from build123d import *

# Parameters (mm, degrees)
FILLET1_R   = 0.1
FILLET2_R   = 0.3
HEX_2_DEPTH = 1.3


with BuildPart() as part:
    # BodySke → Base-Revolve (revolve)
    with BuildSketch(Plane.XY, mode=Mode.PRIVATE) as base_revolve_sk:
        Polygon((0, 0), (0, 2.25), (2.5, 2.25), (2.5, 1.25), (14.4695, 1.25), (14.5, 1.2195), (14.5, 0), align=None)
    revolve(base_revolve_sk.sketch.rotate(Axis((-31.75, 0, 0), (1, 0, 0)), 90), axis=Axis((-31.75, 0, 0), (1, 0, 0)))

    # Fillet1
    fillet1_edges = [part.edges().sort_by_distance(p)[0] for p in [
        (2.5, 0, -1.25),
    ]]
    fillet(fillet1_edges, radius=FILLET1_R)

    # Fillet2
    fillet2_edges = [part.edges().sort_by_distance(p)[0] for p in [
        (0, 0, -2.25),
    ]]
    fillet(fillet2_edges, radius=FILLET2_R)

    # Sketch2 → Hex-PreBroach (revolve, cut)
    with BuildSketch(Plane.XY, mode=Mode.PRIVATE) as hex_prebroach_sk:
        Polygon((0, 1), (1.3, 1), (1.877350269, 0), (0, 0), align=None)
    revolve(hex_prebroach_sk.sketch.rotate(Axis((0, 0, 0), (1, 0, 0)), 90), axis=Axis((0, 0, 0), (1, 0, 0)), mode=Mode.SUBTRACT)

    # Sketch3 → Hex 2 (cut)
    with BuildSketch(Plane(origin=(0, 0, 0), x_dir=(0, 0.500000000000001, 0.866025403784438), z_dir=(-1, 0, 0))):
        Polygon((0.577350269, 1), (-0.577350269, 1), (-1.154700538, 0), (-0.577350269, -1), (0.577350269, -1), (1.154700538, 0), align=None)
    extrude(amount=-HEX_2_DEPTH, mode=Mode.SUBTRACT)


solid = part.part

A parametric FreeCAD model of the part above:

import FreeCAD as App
import Part
import Sketcher
from FreeCAD import Vector
Q = App.Units.Quantity


def edges_at(feature, points):
    """Names of the edges that pass closest to the given points."""
    edges = feature.Shape.Edges
    near = lambda p: min(range(len(edges)), key=lambda i: edges[i].distToShape(Part.Vertex(*p))[0])
    return sorted({f"Edge{near(p) + 1}" for p in points})

doc = App.newDocument("Part")
body = doc.addObject("PartDesign::Body", "Body")

sketch1 = body.newObject("Sketcher::SketchObject", "Sketch")
sketch1.AttachmentSupport = (doc.getObject("XY_Plane"), [""])
sketch1.MapMode = "FlatFace"
sketch1.addGeometry([
    Part.LineSegment(Vector(0, 2.25, 0), Vector(0, 0, 0)),
    Part.LineSegment(Vector(0, 0, 0), Vector(14.5, 0, 0)),
    Part.LineSegment(Vector(14.5, 0, 0), Vector(14.5, 1.2195, 0)),
    Part.LineSegment(Vector(14.5, 1.2195, 0), Vector(14.4695, 1.25, 0)),
    Part.LineSegment(Vector(14.4695, 1.25, 0), Vector(2.5, 1.25, 0)),
    Part.LineSegment(Vector(2.5, 1.25, 0), Vector(2.5, 2.25, 0)),
    Part.LineSegment(Vector(2.5, 2.25, 0), Vector(0, 2.25, 0)),
], False)
sketch1.addConstraint([
    Sketcher.Constraint("Coincident", 0, 2, 1, 1),
    Sketcher.Constraint("Coincident", 1, 2, 2, 1),
    Sketcher.Constraint("Coincident", 2, 2, 3, 1),
    Sketcher.Constraint("Coincident", 3, 2, 4, 1),
    Sketcher.Constraint("Coincident", 4, 2, 5, 1),
    Sketcher.Constraint("Coincident", 5, 2, 6, 1),
    Sketcher.Constraint("Coincident", 6, 2, 0, 1),
    Sketcher.Constraint("Vertical", 0),
    Sketcher.Constraint("Horizontal", 1),
    Sketcher.Constraint("Vertical", 2),
    Sketcher.Constraint("Horizontal", 4),
    Sketcher.Constraint("Vertical", 5),
    Sketcher.Constraint("Horizontal", 6),
    Sketcher.Constraint("Coincident", 0, 2, -1, 1),
    Sketcher.Constraint("DistanceY", 5, 1, 5, 2, Q("1 mm")),
    Sketcher.Constraint("Angle", 3, Q("135 deg")),
    Sketcher.Constraint("DistanceX", 1, 1, 1, 2, Q("14.5 mm")),
    Sketcher.Constraint("DistanceX", 6, 2, 6, 1, Q("2.5 mm")),
    Sketcher.Constraint("DistanceY", 0, 2, 0, 1, Q("2.25 mm")),
    Sketcher.Constraint("DistanceX", 4, 2, 4, 1, Q("11.9695 mm")),
])
revolution = body.newObject("PartDesign::Revolution", "Revolution")
revolution.Profile = sketch1
revolution.ReferenceAxis = (sketch1, ["H_Axis"])
revolution.Angle = 360
doc.recompute()

fillet = body.newObject("PartDesign::Fillet", "Fillet")
fillet.Base = (revolution, edges_at(revolution, [(2.5, 0, -1.25)]))
fillet.Radius = 0.1
doc.recompute()

fillet2 = body.newObject("PartDesign::Fillet", "Fillet001")
fillet2.Base = (fillet, edges_at(fillet, [(0, 0, -2.25)]))
fillet2.Radius = 0.3

sketch2 = body.newObject("Sketcher::SketchObject", "Sketch001")
sketch2.AttachmentSupport = (doc.getObject("XY_Plane"), [""])
sketch2.MapMode = "FlatFace"
sketch2.addGeometry([
    Part.LineSegment(Vector(1.3, 1, 0), Vector(0, 1, 0)),
    Part.LineSegment(Vector(0, 1, 0), Vector(0, 0, 0)),
    Part.LineSegment(Vector(0, 0, 0), Vector(1.87735, 0, 0)),
    Part.LineSegment(Vector(1.87735, 0, 0), Vector(1.3, 1, 0)),
], False)
sketch2.addConstraint([
    Sketcher.Constraint("Coincident", 0, 2, 1, 1),
    Sketcher.Constraint("Coincident", 1, 2, 2, 1),
    Sketcher.Constraint("Coincident", 2, 2, 3, 1),
    Sketcher.Constraint("Coincident", 3, 2, 0, 1),
    Sketcher.Constraint("Horizontal", 0),
    Sketcher.Constraint("Vertical", 1),
    Sketcher.Constraint("Horizontal", 2),
    Sketcher.Constraint("Coincident", 1, 2, -1, 1),
    Sketcher.Constraint("DistanceY", 1, 2, 1, 1, Q("1 mm")),
    Sketcher.Constraint("Angle", 3, Q("120 deg")),
    Sketcher.Constraint("DistanceX", 0, 2, 0, 1, Q("1.3 mm")),
])
groove = body.newObject("PartDesign::Groove", "Groove")
groove.Profile = sketch2
groove.ReferenceAxis = (sketch2, ["H_Axis"])
groove.Angle = 360

sketch3 = body.newObject("Sketcher::SketchObject", "Sketch002")
sketch3.AttachmentSupport = (doc.getObject("YZ_Plane"), [""])
sketch3.MapMode = "FlatFace"
sketch3.addGeometry([
    Part.LineSegment(Vector(1.154701, 0, 0), Vector(0.57735, -1, 0)),
    Part.LineSegment(Vector(0.57735, -1, 0), Vector(-0.57735, -1, 0)),
    Part.LineSegment(Vector(-0.57735, -1, 0), Vector(-1.154701, 0, 0)),
    Part.LineSegment(Vector(-1.154701, 0, 0), Vector(-0.57735, 1, 0)),
    Part.LineSegment(Vector(-0.57735, 1, 0), Vector(0.57735, 1, 0)),
    Part.LineSegment(Vector(0.57735, 1, 0), Vector(1.154701, 0, 0)),
], False)
sketch3.addConstraint([
    Sketcher.Constraint("Coincident", 0, 2, 1, 1),
    Sketcher.Constraint("Coincident", 1, 2, 2, 1),
    Sketcher.Constraint("Coincident", 2, 2, 3, 1),
    Sketcher.Constraint("Coincident", 3, 2, 4, 1),
    Sketcher.Constraint("Coincident", 4, 2, 5, 1),
    Sketcher.Constraint("Coincident", 5, 2, 0, 1),
    Sketcher.Constraint("Horizontal", 1),
    Sketcher.Constraint("Horizontal", 4),
    Sketcher.Constraint("Symmetric", 0, 2, 3, 2, -1, 1),
    Sketcher.Constraint("Symmetric", 2, 2, 5, 2, -1, 1),
    Sketcher.Constraint("PointOnObject", 2, 2, -1),
    Sketcher.Constraint("Parallel", 2, 5),
    Sketcher.Constraint("Vertical", 1, 2, 3, 2),
    Sketcher.Constraint("Angle", 0, Q("-120 deg")),
    Sketcher.Constraint("DistanceY", 0, 2, -1, 1, Q("1 mm")),
    Sketcher.Constraint("DistanceX", 1, 2, 1, 1, Q("1.154701 mm")),
])
pocket1 = body.newObject("PartDesign::Pocket", "Pocket")
pocket1.Profile = sketch3
pocket1.Length = 1.3
pocket1.Reversed = True

doc.recompute()
